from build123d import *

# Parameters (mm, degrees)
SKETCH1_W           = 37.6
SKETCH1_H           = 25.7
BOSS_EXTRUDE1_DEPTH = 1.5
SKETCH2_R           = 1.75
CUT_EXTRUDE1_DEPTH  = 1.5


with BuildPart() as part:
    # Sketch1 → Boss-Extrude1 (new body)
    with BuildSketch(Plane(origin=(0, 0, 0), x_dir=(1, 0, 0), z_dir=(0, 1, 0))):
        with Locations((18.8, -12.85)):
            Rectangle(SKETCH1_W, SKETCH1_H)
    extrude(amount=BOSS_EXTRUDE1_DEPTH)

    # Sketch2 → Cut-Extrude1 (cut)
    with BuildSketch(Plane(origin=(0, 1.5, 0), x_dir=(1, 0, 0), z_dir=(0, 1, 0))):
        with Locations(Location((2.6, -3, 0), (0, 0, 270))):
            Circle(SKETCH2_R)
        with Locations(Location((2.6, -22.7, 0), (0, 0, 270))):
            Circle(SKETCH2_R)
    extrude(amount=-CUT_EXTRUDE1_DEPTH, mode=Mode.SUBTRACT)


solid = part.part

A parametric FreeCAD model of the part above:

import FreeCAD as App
import Part
import Sketcher

V = App.Vector

doc = App.newDocument("Part")
params = doc.addObject("Spreadsheet::Sheet", "Params")
for row, (alias, value) in enumerate([
    ("sketch1_width", "37.6 mm"),
    ("sketch1_height", "25.7 mm"),
    ("pad1_length", "1.5 mm"),
    ("sketch2_diameter", "3.5 mm"),
    ("pocket1_length", "1.5 mm"),
], start=1):
    params.set(f"A{row}", alias)
    params.set(f"B{row}", "=" + value)
    params.setAlias(f"B{row}", alias)

body = doc.addObject("PartDesign::Body", "Body")

sketch1 = doc.addObject("Sketcher::SketchObject", "Sketch")
body.addObject(sketch1)
sketch1.AttachmentSupport = (doc.XZ_Plane, [""])
sketch1.MapMode = "FlatFace"
sketch1.addGeometry(Part.LineSegment(V(0, 0, 0), V(0, 26, 0)), False)
sketch1.addGeometry(Part.LineSegment(V(0, 26, 0), V(38, 26, 0)), False)
sketch1.addGeometry(Part.LineSegment(V(38, 26, 0), V(38, 0, 0)), False)
sketch1.addGeometry(Part.LineSegment(V(38, 0, 0), V(0, 0, 0)), False)
sketch1.addConstraint(Sketcher.Constraint("Coincident", 0, 2, 1, 1))
sketch1.addConstraint(Sketcher.Constraint("Coincident", 1, 2, 2, 1))
sketch1.addConstraint(Sketcher.Constraint("Coincident", 2, 2, 3, 1))
sketch1.addConstraint(Sketcher.Constraint("Coincident", 3, 2, 0, 1))
sketch1.addConstraint(Sketcher.Constraint("Vertical", 0))
sketch1.addConstraint(Sketcher.Constraint("Horizontal", 1))
sketch1.addConstraint(Sketcher.Constraint("Vertical", 2))
sketch1.addConstraint(Sketcher.Constraint("Horizontal", 3))
sketch1.addConstraint(Sketcher.Constraint("Coincident", 3, 2, -1, 1))
sketch1.addConstraint(Sketcher.Constraint("DistanceX", 1, 1, 1, 2, 37.6))
sketch1.addConstraint(Sketcher.Constraint("DistanceY", 0, 1, 0, 2, 25.7))
sketch1.setExpression("Constraints[9]", "Params.sketch1_width")
sketch1.setExpression("Constraints[10]", "Params.sketch1_height")
pad1 = doc.addObject("PartDesign::Pad", "Pad")
body.addObject(pad1)
pad1.Profile = sketch1
pad1.setExpression("Length", "Params.pad1_length")
pad1.Reversed = True

sketch2 = doc.addObject("Sketcher::SketchObject", "Sketch001")
body.addObject(sketch2)
sketch2.AttachmentSupport = (doc.XZ_Plane, [""])
sketch2.MapMode = "FlatFace"
sketch2.AttachmentOffset = App.Placement(V(0, 0, -1.5), App.Rotation())
sketch2.addGeometry(Part.Circle(V(2.6, 3, 0), V(0, 0, 1), 1.8), False)
sketch2.addGeometry(Part.Circle(V(2.6, 22.7, 0), V(0, 0, 1), 1.8), False)
sketch2.addConstraint(Sketcher.Constraint("Equal", 0, 1))
sketch2.addConstraint(Sketcher.Constraint("Vertical", 0, 3, 1, 3))
sketch2.addConstraint(Sketcher.Constraint("Diameter", 0, 3.5))
sketch2.addConstraint(Sketcher.Constraint("DistanceY", -1, 1, 0, 3, 3.0))
sketch2.addConstraint(Sketcher.Constraint("DistanceX", -1, 1, 0, 3, 2.6))
sketch2.addConstraint(Sketcher.Constraint("DistanceY", -1, 1, 1, 3, 22.7))
sketch2.setExpression("Constraints[2]", "Params.sketch2_diameter")
pocket1 = doc.addObject("PartDesign::Pocket", "Pocket")
body.addObject(pocket1)
pocket1.Profile = sketch2
pocket1.setExpression("Length", "Params.pocket1_length")
pocket1.Reversed = True

doc.recompute()
